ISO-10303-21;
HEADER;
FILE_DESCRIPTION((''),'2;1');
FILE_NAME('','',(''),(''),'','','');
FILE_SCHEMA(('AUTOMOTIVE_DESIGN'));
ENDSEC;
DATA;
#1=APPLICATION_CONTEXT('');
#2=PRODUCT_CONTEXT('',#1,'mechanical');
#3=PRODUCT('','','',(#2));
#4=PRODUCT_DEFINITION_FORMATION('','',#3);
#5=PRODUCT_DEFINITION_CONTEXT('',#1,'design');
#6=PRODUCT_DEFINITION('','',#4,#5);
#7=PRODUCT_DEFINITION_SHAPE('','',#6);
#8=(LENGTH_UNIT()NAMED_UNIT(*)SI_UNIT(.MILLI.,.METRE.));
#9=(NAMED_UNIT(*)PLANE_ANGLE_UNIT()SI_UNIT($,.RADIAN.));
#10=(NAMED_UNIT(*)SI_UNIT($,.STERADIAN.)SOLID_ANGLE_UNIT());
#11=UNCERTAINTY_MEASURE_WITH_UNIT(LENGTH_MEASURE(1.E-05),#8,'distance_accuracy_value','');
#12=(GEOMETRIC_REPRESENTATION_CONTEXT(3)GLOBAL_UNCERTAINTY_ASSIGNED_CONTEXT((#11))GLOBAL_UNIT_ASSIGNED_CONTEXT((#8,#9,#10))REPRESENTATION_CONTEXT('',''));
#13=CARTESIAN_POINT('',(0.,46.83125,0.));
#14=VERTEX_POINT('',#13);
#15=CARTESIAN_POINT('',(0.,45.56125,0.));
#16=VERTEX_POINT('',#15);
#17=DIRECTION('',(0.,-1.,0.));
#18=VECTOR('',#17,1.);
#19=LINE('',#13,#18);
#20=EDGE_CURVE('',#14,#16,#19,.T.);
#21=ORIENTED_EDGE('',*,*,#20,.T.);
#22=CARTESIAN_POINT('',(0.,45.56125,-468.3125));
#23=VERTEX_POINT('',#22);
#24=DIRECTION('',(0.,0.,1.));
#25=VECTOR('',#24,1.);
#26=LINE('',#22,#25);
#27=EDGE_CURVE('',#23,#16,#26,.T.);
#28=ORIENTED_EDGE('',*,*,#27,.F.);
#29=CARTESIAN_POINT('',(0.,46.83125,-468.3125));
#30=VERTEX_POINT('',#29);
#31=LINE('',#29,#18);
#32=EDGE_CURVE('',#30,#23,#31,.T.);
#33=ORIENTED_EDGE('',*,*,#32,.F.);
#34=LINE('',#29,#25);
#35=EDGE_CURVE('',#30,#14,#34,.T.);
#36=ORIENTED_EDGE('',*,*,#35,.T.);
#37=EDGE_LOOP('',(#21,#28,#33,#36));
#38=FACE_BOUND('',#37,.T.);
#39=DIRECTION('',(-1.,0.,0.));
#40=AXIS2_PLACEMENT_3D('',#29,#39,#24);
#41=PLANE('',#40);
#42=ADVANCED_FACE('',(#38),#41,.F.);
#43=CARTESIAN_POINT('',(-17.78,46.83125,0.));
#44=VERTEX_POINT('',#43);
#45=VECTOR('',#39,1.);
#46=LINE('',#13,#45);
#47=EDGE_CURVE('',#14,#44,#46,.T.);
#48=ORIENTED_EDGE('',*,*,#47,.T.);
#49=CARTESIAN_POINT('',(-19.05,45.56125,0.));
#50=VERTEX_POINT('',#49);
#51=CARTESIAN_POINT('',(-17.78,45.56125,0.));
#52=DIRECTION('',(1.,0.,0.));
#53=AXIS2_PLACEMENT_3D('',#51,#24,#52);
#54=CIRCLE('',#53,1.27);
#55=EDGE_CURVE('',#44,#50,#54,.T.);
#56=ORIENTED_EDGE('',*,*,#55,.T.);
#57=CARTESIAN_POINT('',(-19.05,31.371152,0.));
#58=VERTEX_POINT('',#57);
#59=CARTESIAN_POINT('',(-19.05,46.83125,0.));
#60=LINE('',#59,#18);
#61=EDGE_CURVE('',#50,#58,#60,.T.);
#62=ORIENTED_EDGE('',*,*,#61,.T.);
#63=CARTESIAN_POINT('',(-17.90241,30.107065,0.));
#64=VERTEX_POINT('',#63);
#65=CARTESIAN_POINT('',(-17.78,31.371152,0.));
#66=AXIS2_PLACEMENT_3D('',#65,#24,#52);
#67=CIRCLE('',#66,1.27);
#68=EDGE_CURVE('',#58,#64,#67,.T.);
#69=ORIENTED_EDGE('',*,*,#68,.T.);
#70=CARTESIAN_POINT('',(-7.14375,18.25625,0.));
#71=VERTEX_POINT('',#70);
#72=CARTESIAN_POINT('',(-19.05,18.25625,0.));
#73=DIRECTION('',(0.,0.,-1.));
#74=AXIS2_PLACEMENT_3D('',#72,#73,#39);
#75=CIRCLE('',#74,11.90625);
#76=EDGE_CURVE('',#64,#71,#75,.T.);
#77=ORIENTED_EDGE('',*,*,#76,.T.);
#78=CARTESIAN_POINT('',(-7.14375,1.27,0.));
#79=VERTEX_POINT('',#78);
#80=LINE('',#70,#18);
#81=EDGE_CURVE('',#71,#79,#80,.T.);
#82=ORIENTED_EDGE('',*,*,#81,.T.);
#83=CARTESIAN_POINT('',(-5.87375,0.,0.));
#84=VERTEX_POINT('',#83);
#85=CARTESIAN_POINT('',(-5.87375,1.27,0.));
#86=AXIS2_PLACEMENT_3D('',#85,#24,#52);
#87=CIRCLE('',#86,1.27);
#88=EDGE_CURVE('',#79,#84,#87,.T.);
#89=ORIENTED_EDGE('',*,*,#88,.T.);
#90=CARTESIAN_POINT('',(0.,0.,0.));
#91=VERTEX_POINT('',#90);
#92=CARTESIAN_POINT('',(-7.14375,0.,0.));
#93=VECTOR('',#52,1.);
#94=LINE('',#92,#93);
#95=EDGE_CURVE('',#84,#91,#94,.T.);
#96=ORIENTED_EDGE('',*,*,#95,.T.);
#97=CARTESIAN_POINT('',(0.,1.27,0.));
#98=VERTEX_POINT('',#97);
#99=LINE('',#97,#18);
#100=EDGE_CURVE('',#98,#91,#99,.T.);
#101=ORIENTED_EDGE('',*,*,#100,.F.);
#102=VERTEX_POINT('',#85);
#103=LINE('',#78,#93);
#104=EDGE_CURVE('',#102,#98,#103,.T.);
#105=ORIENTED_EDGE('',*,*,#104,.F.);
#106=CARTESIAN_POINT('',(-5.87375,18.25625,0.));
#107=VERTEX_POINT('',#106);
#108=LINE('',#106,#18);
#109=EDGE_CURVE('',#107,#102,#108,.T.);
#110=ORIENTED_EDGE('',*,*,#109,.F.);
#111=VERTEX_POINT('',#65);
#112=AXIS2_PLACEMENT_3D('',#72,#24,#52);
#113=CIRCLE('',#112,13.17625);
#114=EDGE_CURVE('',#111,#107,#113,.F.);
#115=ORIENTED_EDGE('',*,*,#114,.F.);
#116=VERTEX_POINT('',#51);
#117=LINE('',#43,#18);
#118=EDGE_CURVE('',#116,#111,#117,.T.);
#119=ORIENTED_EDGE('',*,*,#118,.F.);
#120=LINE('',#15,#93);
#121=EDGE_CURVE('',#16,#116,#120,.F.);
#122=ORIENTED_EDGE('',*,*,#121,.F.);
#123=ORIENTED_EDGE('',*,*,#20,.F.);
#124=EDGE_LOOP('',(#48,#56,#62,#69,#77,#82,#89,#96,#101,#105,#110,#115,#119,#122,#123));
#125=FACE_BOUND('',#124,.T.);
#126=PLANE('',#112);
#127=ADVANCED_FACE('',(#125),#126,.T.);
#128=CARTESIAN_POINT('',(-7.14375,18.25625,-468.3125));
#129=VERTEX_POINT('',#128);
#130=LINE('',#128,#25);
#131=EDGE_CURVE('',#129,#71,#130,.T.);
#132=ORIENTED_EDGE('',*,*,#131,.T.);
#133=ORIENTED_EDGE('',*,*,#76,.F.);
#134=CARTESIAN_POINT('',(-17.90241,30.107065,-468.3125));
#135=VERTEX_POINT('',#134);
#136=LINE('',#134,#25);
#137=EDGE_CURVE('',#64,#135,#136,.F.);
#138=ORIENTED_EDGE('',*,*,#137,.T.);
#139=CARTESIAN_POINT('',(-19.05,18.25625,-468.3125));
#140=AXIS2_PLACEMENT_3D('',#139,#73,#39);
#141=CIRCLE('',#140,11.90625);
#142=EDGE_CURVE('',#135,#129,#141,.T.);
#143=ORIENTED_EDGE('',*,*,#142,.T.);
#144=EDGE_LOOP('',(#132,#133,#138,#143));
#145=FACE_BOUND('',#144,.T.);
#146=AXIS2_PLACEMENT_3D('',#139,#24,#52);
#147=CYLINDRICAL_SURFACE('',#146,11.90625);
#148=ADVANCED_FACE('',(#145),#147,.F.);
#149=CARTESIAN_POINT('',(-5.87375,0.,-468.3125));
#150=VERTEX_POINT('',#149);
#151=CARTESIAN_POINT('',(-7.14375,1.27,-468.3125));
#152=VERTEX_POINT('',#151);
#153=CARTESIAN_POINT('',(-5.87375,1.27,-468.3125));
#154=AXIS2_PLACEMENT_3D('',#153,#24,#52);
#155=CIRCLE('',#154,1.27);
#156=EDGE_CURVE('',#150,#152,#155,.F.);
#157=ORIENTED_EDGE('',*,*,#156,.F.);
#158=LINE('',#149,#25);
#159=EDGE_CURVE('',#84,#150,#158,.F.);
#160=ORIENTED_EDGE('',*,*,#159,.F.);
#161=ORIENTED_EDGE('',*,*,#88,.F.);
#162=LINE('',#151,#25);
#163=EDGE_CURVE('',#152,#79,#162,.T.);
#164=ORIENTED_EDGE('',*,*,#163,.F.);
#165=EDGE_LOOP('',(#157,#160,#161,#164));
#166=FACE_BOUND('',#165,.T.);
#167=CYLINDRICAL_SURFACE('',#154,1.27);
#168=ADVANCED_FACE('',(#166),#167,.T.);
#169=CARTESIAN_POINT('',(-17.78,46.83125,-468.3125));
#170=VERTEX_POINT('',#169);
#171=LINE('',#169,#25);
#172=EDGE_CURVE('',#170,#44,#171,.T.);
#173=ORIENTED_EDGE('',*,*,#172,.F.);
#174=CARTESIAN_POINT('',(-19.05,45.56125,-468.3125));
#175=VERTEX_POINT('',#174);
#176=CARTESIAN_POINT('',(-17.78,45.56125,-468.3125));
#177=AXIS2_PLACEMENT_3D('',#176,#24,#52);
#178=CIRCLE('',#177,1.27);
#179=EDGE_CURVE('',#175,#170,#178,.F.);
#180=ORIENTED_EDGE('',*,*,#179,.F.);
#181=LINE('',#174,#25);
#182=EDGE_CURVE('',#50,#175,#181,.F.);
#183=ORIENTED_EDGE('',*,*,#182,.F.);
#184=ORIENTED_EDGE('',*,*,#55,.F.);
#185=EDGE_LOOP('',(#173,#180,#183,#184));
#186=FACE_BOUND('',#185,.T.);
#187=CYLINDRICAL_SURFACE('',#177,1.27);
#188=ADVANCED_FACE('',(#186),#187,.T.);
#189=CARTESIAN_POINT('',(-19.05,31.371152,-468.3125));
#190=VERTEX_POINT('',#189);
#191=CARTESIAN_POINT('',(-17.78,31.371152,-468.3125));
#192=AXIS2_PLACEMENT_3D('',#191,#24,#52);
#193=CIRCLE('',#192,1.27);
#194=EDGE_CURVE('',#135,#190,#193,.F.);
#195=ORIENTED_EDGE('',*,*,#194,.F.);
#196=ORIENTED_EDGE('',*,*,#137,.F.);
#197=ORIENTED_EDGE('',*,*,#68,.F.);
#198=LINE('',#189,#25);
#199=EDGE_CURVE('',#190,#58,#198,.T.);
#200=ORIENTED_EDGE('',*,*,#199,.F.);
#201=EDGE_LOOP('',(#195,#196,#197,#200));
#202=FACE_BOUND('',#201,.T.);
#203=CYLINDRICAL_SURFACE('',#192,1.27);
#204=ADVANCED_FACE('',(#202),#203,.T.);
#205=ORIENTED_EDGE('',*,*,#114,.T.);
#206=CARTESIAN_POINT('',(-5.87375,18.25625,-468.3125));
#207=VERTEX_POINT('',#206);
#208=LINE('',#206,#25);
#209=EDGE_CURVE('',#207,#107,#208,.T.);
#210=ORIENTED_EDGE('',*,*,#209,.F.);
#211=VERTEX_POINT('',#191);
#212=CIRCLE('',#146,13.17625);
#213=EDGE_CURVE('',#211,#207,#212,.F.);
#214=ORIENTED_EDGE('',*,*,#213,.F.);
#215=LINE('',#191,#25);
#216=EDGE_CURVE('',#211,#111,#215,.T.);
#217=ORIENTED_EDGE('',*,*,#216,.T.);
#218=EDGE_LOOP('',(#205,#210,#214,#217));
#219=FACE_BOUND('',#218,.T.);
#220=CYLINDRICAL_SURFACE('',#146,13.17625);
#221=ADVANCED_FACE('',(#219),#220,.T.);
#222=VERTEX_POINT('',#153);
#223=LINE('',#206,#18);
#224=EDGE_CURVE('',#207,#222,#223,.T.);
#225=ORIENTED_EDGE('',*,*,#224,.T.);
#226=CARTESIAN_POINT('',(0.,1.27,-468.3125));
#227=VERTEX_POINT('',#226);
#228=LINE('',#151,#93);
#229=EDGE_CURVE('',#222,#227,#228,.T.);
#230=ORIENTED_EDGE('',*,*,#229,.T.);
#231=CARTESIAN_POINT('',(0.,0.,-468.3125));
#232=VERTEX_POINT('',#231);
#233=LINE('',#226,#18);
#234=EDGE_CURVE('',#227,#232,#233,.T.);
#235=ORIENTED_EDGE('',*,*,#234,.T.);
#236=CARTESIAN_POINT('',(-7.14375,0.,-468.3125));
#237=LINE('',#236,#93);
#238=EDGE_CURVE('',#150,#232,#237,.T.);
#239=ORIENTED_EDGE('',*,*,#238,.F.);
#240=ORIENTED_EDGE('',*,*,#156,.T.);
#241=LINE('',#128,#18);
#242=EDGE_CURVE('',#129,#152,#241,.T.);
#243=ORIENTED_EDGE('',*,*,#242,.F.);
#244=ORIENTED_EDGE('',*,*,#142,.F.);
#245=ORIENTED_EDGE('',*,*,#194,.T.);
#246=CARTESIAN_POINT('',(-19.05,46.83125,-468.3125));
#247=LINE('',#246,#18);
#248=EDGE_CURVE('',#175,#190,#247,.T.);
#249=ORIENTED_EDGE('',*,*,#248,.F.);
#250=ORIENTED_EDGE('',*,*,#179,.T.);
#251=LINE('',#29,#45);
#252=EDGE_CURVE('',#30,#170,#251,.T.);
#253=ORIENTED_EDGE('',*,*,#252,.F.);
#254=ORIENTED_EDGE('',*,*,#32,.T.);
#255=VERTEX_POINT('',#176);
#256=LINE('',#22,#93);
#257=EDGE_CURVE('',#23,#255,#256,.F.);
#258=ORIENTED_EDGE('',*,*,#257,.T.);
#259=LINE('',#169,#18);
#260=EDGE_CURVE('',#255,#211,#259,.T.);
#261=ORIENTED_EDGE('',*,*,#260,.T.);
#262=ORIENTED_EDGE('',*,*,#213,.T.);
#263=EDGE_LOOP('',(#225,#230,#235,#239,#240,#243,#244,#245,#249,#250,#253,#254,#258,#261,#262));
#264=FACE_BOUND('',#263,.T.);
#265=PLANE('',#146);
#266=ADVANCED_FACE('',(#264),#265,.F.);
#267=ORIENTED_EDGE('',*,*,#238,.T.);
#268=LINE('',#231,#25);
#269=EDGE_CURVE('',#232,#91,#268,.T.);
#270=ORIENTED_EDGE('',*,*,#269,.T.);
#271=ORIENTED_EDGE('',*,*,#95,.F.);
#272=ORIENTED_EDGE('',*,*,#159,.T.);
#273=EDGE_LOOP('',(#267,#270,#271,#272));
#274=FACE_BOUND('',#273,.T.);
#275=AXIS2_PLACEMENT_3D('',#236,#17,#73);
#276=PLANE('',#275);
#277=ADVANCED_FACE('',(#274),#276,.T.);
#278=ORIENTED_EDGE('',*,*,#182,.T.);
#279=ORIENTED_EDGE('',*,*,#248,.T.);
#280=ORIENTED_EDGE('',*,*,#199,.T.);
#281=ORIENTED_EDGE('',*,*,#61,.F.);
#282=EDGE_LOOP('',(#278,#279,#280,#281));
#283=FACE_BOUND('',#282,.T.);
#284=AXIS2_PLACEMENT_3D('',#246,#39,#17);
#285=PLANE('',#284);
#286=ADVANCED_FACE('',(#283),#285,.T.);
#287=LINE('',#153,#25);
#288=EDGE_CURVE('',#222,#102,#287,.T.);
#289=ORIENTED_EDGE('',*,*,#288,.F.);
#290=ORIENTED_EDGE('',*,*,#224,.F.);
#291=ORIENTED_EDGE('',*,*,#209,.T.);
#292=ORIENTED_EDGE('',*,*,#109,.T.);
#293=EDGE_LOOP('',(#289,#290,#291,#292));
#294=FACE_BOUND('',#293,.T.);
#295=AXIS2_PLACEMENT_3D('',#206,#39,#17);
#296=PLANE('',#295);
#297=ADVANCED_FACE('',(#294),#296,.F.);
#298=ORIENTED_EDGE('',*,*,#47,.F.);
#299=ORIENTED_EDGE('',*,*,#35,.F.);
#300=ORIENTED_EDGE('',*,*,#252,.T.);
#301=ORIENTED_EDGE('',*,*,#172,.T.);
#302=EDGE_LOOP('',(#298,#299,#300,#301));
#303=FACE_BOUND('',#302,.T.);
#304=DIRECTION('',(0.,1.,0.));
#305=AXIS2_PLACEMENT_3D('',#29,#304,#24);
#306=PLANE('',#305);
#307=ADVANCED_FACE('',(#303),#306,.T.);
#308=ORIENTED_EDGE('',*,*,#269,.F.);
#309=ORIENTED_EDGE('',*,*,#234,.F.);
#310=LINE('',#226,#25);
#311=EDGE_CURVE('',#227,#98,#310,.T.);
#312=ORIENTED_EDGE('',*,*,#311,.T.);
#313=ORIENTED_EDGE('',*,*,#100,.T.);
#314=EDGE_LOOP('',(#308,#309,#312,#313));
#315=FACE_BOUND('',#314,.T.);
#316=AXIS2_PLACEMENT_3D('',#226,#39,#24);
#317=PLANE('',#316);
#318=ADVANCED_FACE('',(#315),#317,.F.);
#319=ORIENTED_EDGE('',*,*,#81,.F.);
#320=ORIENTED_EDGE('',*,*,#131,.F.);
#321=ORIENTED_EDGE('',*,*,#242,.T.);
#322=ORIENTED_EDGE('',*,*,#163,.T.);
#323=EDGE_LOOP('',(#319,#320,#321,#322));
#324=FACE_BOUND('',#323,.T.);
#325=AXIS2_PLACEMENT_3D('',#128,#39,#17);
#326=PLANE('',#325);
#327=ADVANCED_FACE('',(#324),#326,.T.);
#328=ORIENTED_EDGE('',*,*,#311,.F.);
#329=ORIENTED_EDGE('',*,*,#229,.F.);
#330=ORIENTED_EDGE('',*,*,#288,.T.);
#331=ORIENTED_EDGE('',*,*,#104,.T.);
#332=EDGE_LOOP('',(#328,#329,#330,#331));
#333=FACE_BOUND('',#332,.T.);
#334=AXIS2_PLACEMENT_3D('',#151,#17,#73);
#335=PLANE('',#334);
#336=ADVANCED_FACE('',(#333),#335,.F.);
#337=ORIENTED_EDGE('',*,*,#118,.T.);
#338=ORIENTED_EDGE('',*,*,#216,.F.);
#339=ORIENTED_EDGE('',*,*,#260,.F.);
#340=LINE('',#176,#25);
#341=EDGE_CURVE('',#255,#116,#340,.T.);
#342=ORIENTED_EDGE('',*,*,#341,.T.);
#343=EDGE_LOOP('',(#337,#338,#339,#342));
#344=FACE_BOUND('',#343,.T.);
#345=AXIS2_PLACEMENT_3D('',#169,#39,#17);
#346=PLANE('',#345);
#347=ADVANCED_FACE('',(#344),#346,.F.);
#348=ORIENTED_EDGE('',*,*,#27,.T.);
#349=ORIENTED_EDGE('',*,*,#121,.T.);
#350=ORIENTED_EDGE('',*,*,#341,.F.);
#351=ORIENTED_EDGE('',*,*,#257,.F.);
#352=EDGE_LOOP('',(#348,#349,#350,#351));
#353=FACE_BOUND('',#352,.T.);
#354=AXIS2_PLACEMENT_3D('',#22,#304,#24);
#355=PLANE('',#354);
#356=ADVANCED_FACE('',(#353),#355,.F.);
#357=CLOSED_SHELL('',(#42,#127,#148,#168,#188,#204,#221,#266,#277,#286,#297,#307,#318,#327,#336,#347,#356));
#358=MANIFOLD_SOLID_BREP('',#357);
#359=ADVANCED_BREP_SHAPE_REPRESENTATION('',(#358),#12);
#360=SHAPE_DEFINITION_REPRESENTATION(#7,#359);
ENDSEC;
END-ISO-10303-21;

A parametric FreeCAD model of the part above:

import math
import FreeCAD as App
import Part
import Sketcher
Q = App.Units.Quantity


def edges_at(feature, points):
    """Names of the edges that pass closest to the given points."""
    edges = feature.Shape.Edges
    near = lambda p: min(range(len(edges)), key=lambda i: edges[i].distToShape(Part.Vertex(*p))[0])
    return sorted({f"Edge{near(p) + 1}" for p in points})

doc = App.newDocument("Part")
body = doc.addObject("PartDesign::Body", "Body")

# Sketch on XY plane
sketch1 = doc.addObject("Sketcher::SketchObject", "Sketch")
body.addObject(sketch1)
sketch1.AttachmentSupport = (doc.XY_Plane, [""])
sketch1.MapMode = "FlatFace"
sketch1.addGeometry([
    Part.LineSegment(App.Vector(0, 46.8, 0), App.Vector(-19.1, 46.8, 0)),  # 0
    Part.LineSegment(App.Vector(-19.1, 46.8, 0), App.Vector(-19.1, 30.2, 0)),  # 1
    Part.ArcOfCircle(Part.Circle(App.Vector(-19, 18.3, 0), App.Vector(0, 0, 1), 11.9), math.radians(0), math.radians(90)),  # 2
    Part.LineSegment(App.Vector(-7.1, 18.3, 0), App.Vector(-7.1, 0, 0)),  # 3
    Part.LineSegment(App.Vector(-7.1, 0, 0), App.Vector(0, 0, 0)),  # 4
    Part.LineSegment(App.Vector(0, 0, 0), App.Vector(0, 1.3, 0)),  # 5
    Part.LineSegment(App.Vector(0, 1.3, 0), App.Vector(-5.9, 1.3, 0)),  # 6
    Part.LineSegment(App.Vector(-5.9, 1.3, 0), App.Vector(-5.9, 18.3, 0)),  # 7
    Part.ArcOfCircle(Part.Circle(App.Vector(-19.1, 18.3, 0), App.Vector(0, 0, 1), 13.2), math.radians(0), math.radians(84)),  # 8
    Part.LineSegment(App.Vector(-17.8, 31.4, 0), App.Vector(-17.8, 45.6, 0)),  # 9
    Part.LineSegment(App.Vector(-17.8, 45.6, 0), App.Vector(0, 45.6, 0)),  # 10
    Part.LineSegment(App.Vector(0, 45.6, 0), App.Vector(0, 46.8, 0)),  # 11
], False)
sketch1.addConstraint([
    Sketcher.Constraint("Coincident", 0, 2, 1, 1),
    Sketcher.Constraint("Coincident", 1, 2, 2, 2),
    Sketcher.Constraint("Tangent", 2, 1, 3, 1),
    Sketcher.Constraint("Coincident", 3, 2, 4, 1),
    Sketcher.Constraint("Coincident", 4, 2, 5, 1),
    Sketcher.Constraint("Coincident", 5, 2, 6, 1),
    Sketcher.Constraint("Coincident", 6, 2, 7, 1),
    Sketcher.Constraint("Tangent", 7, 2, 8, 1),
    Sketcher.Constraint("Coincident", 8, 2, 9, 1),
    Sketcher.Constraint("Coincident", 9, 2, 10, 1),
    Sketcher.Constraint("Coincident", 10, 2, 11, 1),
    Sketcher.Constraint("Coincident", 11, 2, 0, 1),
    Sketcher.Constraint("Horizontal", 0),
    Sketcher.Constraint("Vertical", 1),
    Sketcher.Constraint("Vertical", 3),
    Sketcher.Constraint("Horizontal", 4),
    Sketcher.Constraint("Vertical", 5),
    Sketcher.Constraint("Horizontal", 6),
    Sketcher.Constraint("Vertical", 7),
    Sketcher.Constraint("Vertical", 9),
    Sketcher.Constraint("Horizontal", 10),
    Sketcher.Constraint("Vertical", 11),
    Sketcher.Constraint("Coincident", 4, 2, -1, 1),
    Sketcher.Constraint("Coincident", 8, 3, 2, 3),
    Sketcher.Constraint("PointOnObject", 10, 2, -2),
    Sketcher.Constraint("Vertical", 8, 3, 0, 2),
    Sketcher.Constraint("Equal", 5, 11),
    Sketcher.Constraint("DistanceX", 10, 1, 10, 2, Q("0.7 in")),
    Sketcher.Constraint("Radius", 2, Q("0.46875 in")),
    Sketcher.Constraint("DistanceX", 0, 2, 0, 1, Q("0.75 in")),
    Sketcher.Constraint("DistanceY", 5, 1, 5, 2, Q("0.05 in")),
    Sketcher.Constraint("DistanceY", 1, 2, 1, 1, Q("0.65625 in")),
    Sketcher.Constraint("DistanceY", 3, 2, 3, 1, Q("0.71875 in")),
    Sketcher.Constraint("DistanceX", 3, 2, 6, 2, Q("0.05 in")),
])
pad1 = doc.addObject("PartDesign::Pad", "Pad")
body.addObject(pad1)
pad1.Profile = sketch1
pad1.Length = Q("18.4375 in")
pad1.Reversed = True
doc.recompute()

fillet = doc.addObject("PartDesign::Fillet", "Fillet")
body.addObject(fillet)
fillet.Base = (pad1, edges_at(pad1, [(-7.144, 0, -234.156), (-19.05, 30.163, -234.156), (-19.05, 46.831, -234.156)]))
fillet.Radius = Q("0.05 in")

doc.recompute()
